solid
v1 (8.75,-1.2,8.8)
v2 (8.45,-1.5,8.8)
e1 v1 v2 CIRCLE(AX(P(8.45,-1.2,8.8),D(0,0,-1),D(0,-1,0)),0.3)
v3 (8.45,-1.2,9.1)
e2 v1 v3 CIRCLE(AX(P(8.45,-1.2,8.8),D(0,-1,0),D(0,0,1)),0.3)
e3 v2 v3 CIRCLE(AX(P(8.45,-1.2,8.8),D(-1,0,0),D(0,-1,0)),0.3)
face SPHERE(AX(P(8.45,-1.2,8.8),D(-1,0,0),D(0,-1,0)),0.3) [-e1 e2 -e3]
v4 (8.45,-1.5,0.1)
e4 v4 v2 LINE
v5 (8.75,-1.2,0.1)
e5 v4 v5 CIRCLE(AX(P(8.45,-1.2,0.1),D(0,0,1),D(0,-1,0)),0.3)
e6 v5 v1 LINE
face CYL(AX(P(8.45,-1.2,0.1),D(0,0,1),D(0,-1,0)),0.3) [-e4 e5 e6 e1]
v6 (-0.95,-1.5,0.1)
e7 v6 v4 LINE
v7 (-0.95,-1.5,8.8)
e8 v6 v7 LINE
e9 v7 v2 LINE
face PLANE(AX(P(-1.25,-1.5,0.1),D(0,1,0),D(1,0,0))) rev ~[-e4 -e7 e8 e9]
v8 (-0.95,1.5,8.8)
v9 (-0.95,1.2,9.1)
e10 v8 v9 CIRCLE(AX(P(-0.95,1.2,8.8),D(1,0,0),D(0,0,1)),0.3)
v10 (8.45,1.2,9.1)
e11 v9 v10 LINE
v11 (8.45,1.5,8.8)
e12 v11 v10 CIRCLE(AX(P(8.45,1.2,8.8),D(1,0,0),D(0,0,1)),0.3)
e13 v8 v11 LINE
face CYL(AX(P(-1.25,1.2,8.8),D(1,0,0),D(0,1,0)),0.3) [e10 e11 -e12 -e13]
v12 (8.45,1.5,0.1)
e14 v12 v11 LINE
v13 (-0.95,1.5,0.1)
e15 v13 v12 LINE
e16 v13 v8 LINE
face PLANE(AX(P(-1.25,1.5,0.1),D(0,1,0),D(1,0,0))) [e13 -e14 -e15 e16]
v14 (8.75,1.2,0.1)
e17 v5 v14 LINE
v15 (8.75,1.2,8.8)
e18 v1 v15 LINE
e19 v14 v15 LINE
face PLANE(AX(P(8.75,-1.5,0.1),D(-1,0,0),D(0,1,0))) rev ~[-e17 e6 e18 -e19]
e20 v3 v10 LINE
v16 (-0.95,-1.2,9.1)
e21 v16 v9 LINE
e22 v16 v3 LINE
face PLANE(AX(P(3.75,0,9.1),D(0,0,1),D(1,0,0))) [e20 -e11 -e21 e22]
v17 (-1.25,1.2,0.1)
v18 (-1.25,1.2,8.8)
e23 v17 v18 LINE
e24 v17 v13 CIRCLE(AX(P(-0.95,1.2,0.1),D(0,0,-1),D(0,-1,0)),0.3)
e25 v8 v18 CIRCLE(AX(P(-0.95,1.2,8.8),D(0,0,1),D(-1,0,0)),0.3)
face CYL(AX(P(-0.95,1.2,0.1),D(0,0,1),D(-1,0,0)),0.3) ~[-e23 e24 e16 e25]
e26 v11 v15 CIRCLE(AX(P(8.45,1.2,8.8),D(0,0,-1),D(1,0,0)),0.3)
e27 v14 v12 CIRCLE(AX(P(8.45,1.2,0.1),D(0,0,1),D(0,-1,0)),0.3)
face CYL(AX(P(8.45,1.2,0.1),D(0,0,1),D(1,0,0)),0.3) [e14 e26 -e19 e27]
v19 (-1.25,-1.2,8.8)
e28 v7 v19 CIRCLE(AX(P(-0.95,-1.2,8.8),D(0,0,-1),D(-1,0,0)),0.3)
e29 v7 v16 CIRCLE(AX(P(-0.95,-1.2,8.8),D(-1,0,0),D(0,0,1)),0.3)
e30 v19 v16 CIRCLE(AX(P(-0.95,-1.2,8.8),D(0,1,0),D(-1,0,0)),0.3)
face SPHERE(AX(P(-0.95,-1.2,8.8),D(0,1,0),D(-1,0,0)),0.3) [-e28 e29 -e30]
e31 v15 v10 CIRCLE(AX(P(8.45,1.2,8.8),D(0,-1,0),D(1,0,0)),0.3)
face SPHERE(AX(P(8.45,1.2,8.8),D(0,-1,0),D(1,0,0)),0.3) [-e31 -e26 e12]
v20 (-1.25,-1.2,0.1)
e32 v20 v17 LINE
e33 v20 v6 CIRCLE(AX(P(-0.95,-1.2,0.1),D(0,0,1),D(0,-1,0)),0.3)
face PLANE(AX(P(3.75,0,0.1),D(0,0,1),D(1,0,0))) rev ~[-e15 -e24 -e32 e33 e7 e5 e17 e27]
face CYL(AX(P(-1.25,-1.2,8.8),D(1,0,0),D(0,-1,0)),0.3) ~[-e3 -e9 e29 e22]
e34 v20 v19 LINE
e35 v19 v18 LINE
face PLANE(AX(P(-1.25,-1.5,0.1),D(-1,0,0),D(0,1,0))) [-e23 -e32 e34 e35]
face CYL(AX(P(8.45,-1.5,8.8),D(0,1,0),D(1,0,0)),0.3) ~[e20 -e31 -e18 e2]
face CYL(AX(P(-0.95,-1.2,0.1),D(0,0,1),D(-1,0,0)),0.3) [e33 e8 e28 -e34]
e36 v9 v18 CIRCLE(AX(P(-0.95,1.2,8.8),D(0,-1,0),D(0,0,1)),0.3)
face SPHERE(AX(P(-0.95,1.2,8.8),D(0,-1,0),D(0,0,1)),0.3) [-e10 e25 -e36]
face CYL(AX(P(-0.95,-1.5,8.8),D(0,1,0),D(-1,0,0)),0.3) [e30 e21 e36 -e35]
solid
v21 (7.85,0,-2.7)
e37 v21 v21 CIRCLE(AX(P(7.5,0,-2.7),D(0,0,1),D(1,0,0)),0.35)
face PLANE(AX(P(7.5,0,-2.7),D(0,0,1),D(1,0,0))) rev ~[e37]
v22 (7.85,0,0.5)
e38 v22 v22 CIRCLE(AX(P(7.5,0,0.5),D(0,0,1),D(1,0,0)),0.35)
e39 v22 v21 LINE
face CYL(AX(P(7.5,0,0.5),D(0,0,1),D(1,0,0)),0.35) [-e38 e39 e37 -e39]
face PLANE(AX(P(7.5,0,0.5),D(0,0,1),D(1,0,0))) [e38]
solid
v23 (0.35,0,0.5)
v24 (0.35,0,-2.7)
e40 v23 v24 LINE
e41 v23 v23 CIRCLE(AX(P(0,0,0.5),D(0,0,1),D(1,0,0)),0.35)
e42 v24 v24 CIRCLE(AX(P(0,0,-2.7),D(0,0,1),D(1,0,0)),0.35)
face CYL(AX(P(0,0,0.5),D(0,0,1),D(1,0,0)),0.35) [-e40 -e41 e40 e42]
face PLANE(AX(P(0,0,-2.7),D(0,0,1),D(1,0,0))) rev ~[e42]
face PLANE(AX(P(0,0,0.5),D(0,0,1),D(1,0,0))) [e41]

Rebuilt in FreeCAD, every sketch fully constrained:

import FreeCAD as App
import Part
import Sketcher
from FreeCAD import Vector


def edges_at(feature, points):
    """Names of the edges that pass closest to the given points."""
    edges = feature.Shape.Edges
    near = lambda p: min(range(len(edges)), key=lambda i: edges[i].distToShape(Part.Vertex(*p))[0])
    return sorted({f"Edge{near(p) + 1}" for p in points})

doc = App.newDocument("Part")
params = doc.addObject("Spreadsheet::Sheet", "Params")
for row, (alias, value) in enumerate([
    ("sketch1_width", "10 mm"),
    ("sketch1_height", "3 mm"),
    ("pad1_length", "9 mm"),
    ("fillet_radius", "0.3 mm"),
    ("sketch2_diameter", "0.7 mm"),
    ("pad2_length", "3.2 mm"),
], start=1):
    params.set(f"A{row}", alias)
    params.set(f"B{row}", "=" + value)
    params.setAlias(f"B{row}", alias)

body = doc.addObject("PartDesign::Body", "Body")

sketch1 = body.newObject("Sketcher::SketchObject", "Sketch")
sketch1.AttachmentSupport = (doc.getObject("XY_Plane"), [""])
sketch1.MapMode = "FlatFace"
sketch1.AttachmentOffset = App.Placement(Vector(0, 0, 0.1), App.Rotation())
sketch1.addGeometry([
    Part.LineSegment(Vector(-1.25, 1.5, 0), Vector(-1.25, -1.5, 0)),
    Part.LineSegment(Vector(-1.25, -1.5, 0), Vector(8.75, -1.5, 0)),
    Part.LineSegment(Vector(8.75, -1.5, 0), Vector(8.75, 1.5, 0)),
    Part.LineSegment(Vector(8.75, 1.5, 0), Vector(-1.25, 1.5, 0)),
], False)
sketch1.addConstraint([
    Sketcher.Constraint("Coincident", 0, 2, 1, 1),
    Sketcher.Constraint("Coincident", 1, 2, 2, 1),
    Sketcher.Constraint("Coincident", 2, 2, 3, 1),
    Sketcher.Constraint("Coincident", 3, 2, 0, 1),
    Sketcher.Constraint("Vertical", 0),
    Sketcher.Constraint("Horizontal", 1),
    Sketcher.Constraint("Vertical", 2),
    Sketcher.Constraint("Horizontal", 3),
    Sketcher.Constraint("DistanceX", 1, 1, 1, 2, 10.0),
    Sketcher.Constraint("DistanceY", 0, 2, 0, 1, 3.0),
    Sketcher.Constraint("DistanceY", 0, 2, -1, 1, 1.5),
    Sketcher.Constraint("DistanceX", 0, 2, -1, 1, 1.25),
])
sketch1.setExpression("Constraints[8]", "Params.sketch1_width")
sketch1.setExpression("Constraints[9]", "Params.sketch1_height")
pad1 = body.newObject("PartDesign::Pad", "Pad")
pad1.Profile = sketch1
pad1.setExpression("Length", "Params.pad1_length")
doc.recompute()

fillet = body.newObject("PartDesign::Fillet", "Fillet")
fillet.Base = (pad1, edges_at(pad1, [
    (-1.25, 0, 9.1),
    (-1.25, -1.5, 4.6),
    (3.75, -1.5, 9.1),
    (8.75, -1.5, 4.6),
    (8.75, 0, 9.1),
    (8.75, 1.5, 4.6),
    (3.75, 1.5, 9.1),
    (-1.25, 1.5, 4.6),
]))
fillet.setExpression("Radius", "Params.fillet_radius")
body2 = doc.addObject("PartDesign::Body", "Body001")
body2.AllowCompound = True

sketch2 = body2.newObject("Sketcher::SketchObject", "Sketch001")
sketch2.AttachmentSupport = (doc.getObject("XY_Plane001"), [""])
sketch2.MapMode = "FlatFace"
sketch2.AttachmentOffset = App.Placement(Vector(0, 0, 0.5), App.Rotation())
sketch2.addGeometry([
    Part.Circle(Vector(0, 0, 0), Vector(0, 0, 1), 0.35),
    Part.Circle(Vector(7.5, 0, 0), Vector(0, 0, 1), 0.35),
], False)
sketch2.addConstraint([
    Sketcher.Constraint("Coincident", 0, 3, -1, 1),
    Sketcher.Constraint("Equal", 0, 1),
    Sketcher.Constraint("PointOnObject", 1, 3, -1),
    Sketcher.Constraint("Diameter", 0, 0.7),
    Sketcher.Constraint("DistanceX", -1, 1, 1, 3, 7.5),
])
sketch2.setExpression("Constraints[3]", "Params.sketch2_diameter")
pad2 = body2.newObject("PartDesign::Pad", "Pad001")
pad2.Profile = sketch2
pad2.setExpression("Length", "Params.pad2_length")
pad2.Reversed = True

doc.recompute()
